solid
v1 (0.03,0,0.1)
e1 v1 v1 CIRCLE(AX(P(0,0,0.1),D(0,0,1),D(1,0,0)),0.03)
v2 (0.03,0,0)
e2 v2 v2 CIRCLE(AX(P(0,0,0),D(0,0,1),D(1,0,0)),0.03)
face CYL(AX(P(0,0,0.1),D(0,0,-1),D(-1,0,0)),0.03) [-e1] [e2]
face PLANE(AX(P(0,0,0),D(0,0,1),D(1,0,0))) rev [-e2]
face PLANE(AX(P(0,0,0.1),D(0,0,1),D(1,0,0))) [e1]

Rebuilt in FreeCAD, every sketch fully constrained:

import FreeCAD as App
import Part
import Sketcher
from FreeCAD import Vector

doc = App.newDocument("Part")
params = doc.addObject("Spreadsheet::Sheet", "Params")
for row, (alias, value) in enumerate([
    ("sketch1_diameter", "0.06 mm"),
    ("pad1_length", "0.1 mm"),
], start=1):
    params.set(f"A{row}", alias)
    params.set(f"B{row}", "=" + value)
    params.setAlias(f"B{row}", alias)

body = doc.addObject("PartDesign::Body", "Body")

# Sketch on XY plane
sketch1 = body.newObject("Sketcher::SketchObject", "Sketch")
sketch1.AttachmentSupport = (doc.getObject("XY_Plane"), [""])
sketch1.MapMode = "FlatFace"
sketch1.addGeometry(Part.Circle(Vector(0, 0, 0), Vector(0, 0, 1), 0.03), False)
sketch1.addConstraint([
    Sketcher.Constraint("Coincident", 0, 3, -1, 1),
    Sketcher.Constraint("Diameter", 0, 0.06),
])
sketch1.setExpression("Constraints[1]", "Params.sketch1_diameter")
pad1 = body.newObject("PartDesign::Pad", "Pad")
pad1.Profile = sketch1
pad1.setExpression("Length", "Params.pad1_length")

doc.recompute()
